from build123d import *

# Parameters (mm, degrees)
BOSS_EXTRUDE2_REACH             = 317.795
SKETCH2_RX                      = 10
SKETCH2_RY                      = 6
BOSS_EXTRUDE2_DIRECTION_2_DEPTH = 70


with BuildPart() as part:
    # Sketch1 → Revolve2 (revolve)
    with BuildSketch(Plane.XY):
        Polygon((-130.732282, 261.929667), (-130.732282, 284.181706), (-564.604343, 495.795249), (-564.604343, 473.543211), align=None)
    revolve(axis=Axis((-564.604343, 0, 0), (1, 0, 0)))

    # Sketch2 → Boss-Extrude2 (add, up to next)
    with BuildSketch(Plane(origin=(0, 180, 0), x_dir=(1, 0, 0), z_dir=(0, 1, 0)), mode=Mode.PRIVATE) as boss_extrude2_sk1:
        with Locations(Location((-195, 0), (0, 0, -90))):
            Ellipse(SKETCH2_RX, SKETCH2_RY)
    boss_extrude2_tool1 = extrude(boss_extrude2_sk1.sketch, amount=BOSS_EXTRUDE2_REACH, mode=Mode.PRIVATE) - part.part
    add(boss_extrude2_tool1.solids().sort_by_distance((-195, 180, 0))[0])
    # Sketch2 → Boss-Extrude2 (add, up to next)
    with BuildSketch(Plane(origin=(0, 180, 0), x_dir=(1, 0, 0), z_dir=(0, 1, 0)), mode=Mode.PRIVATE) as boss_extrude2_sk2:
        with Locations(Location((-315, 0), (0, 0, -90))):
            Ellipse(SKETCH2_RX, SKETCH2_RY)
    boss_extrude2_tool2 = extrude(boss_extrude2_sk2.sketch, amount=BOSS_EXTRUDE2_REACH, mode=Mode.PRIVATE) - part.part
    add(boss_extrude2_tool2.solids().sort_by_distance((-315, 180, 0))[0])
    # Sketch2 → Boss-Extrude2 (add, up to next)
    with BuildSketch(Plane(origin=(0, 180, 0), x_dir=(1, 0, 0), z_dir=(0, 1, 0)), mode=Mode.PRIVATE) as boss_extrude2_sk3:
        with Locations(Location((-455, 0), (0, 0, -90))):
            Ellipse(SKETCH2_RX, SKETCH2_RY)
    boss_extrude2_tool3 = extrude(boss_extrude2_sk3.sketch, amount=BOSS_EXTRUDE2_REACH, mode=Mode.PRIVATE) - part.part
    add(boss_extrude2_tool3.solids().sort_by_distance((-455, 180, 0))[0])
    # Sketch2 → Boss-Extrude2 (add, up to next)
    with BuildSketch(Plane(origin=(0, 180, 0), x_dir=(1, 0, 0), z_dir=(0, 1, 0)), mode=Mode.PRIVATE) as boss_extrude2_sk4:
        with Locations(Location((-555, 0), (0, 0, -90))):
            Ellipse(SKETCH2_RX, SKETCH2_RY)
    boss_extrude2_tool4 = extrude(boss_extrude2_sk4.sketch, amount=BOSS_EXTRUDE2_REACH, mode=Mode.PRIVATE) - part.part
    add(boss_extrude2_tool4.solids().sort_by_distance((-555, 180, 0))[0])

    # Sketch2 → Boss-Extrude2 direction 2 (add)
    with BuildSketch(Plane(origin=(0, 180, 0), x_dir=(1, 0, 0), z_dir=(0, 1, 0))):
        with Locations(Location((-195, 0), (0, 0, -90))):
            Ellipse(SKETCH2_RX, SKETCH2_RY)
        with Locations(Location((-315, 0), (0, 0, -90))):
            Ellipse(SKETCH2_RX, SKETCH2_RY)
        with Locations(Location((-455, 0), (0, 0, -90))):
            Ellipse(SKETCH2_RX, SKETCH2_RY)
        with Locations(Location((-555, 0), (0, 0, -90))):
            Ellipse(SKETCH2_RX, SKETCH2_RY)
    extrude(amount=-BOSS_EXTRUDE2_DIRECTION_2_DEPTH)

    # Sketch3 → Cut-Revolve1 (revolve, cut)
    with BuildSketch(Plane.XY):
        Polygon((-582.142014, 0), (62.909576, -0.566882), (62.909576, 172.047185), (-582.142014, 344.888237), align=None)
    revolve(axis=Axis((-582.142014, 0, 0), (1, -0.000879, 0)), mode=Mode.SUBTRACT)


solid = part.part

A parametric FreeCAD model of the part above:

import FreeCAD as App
import Part
import Sketcher
from FreeCAD import Vector
Q = App.Units.Quantity

doc = App.newDocument("Part")
body = doc.addObject("PartDesign::Body", "Body")

# Sketch on XY plane
sketch1 = body.newObject("Sketcher::SketchObject", "Sketch")
sketch1.AttachmentSupport = (doc.getObject("XY_Plane"), [""])
sketch1.MapMode = "FlatFace"
sketch1.addGeometry([
    Part.LineSegment(Vector(-131, 262, 0), Vector(-131, 284, 0)),
    Part.LineSegment(Vector(-131, 284, 0), Vector(-565, 496, 0)),
    Part.LineSegment(Vector(-565, 496, 0), Vector(-565, 474, 0)),
    Part.LineSegment(Vector(-565, 474, 0), Vector(-131, 262, 0)),
], False)
sketch1.addConstraint([
    Sketcher.Constraint("Coincident", 0, 2, 1, 1),
    Sketcher.Constraint("Coincident", 1, 2, 2, 1),
    Sketcher.Constraint("Coincident", 2, 2, 3, 1),
    Sketcher.Constraint("Coincident", 3, 2, 0, 1),
    Sketcher.Constraint("Vertical", 0),
    Sketcher.Constraint("Vertical", 2),
    Sketcher.Constraint("Parallel", 1, 3),
    Sketcher.Constraint("Angle", 1, Q("154 deg")),
    Sketcher.Constraint("DistanceY", 0, 1, 0, 2, 22.252039),
    Sketcher.Constraint("DistanceX", 0, 2, -1, 1, 130.732282),
    Sketcher.Constraint("DistanceY", -1, 1, 1, 2, 495.795249),
    Sketcher.Constraint("DistanceX", 1, 2, 0, 2, 433.872061),
])
revolution = body.newObject("PartDesign::Revolution", "Revolution")
revolution.Profile = sketch1
revolution.ReferenceAxis = (sketch1, ["H_Axis"])
revolution.Angle = 360

# Sketch on XZ plane
sketch2 = body.newObject("Sketcher::SketchObject", "Sketch001")
sketch2.AttachmentSupport = (doc.getObject("XZ_Plane"), [""])
sketch2.MapMode = "FlatFace"
sketch2.AttachmentOffset = App.Placement(Vector(0, 0, -180), App.Rotation())
sketch2.addGeometry(Part.Ellipse(Vector(-195, 10, 0), Vector(-201, 0, 0), Vector(-195, 0, 0)), False)
sketch2.addConstraint(Sketcher.Constraint("Block", 0))
pad1 = body.newObject("PartDesign::Pad", "Pad")
pad1.Profile = sketch2
pad1.Type = "UpToFirst"
pad1.Reversed = True

# Sketch on XZ plane
sketch3 = body.newObject("Sketcher::SketchObject", "Sketch002")
sketch3.AttachmentSupport = (doc.getObject("XZ_Plane"), [""])
sketch3.MapMode = "FlatFace"
sketch3.AttachmentOffset = App.Placement(Vector(0, 0, -180), App.Rotation())
sketch3.addGeometry(Part.Ellipse(Vector(-315, 10, 0), Vector(-321, 0, 0), Vector(-315, 0, 0)), False)
sketch3.addConstraint(Sketcher.Constraint("Block", 0))
pad2 = body.newObject("PartDesign::Pad", "Pad001")
pad2.Profile = sketch3
pad2.Type = "UpToFirst"
pad2.Reversed = True

# Sketch on XZ plane
sketch4 = body.newObject("Sketcher::SketchObject", "Sketch003")
sketch4.AttachmentSupport = (doc.getObject("XZ_Plane"), [""])
sketch4.MapMode = "FlatFace"
sketch4.AttachmentOffset = App.Placement(Vector(0, 0, -180), App.Rotation())
sketch4.addGeometry(Part.Ellipse(Vector(-455, 10, 0), Vector(-461, 0, 0), Vector(-455, 0, 0)), False)
sketch4.addConstraint(Sketcher.Constraint("Block", 0))
pad3 = body.newObject("PartDesign::Pad", "Pad002")
pad3.Profile = sketch4
pad3.Type = "UpToFirst"
pad3.Reversed = True

# Sketch on XZ plane
sketch5 = body.newObject("Sketcher::SketchObject", "Sketch004")
sketch5.AttachmentSupport = (doc.getObject("XZ_Plane"), [""])
sketch5.MapMode = "FlatFace"
sketch5.AttachmentOffset = App.Placement(Vector(0, 0, -180), App.Rotation())
sketch5.addGeometry(Part.Ellipse(Vector(-555, 10, 0), Vector(-561, 0, 0), Vector(-555, 0, 0)), False)
sketch5.addConstraint(Sketcher.Constraint("Block", 0))
pad4 = body.newObject("PartDesign::Pad", "Pad003")
pad4.Profile = sketch5
pad4.Type = "UpToFirst"
pad4.Reversed = True

# Sketch on XZ plane
sketch6 = body.newObject("Sketcher::SketchObject", "Sketch005")
sketch6.AttachmentSupport = (doc.getObject("XZ_Plane"), [""])
sketch6.MapMode = "FlatFace"
sketch6.AttachmentOffset = App.Placement(Vector(0, 0, -180), App.Rotation())
sketch6.addGeometry([
    Part.Ellipse(Vector(-195, 10, 0), Vector(-201, 0, 0), Vector(-195, 0, 0)),
    Part.Ellipse(Vector(-315, 10, 0), Vector(-321, 0, 0), Vector(-315, 0, 0)),
    Part.Ellipse(Vector(-455, 10, 0), Vector(-461, 0, 0), Vector(-455, 0, 0)),
    Part.Ellipse(Vector(-555, 10, 0), Vector(-561, 0, 0), Vector(-555, 0, 0)),
], False)
sketch6.addConstraint([
    Sketcher.Constraint("Block", 0),
    Sketcher.Constraint("Block", 1),
    Sketcher.Constraint("Block", 2),
    Sketcher.Constraint("Block", 3),
])
pad5 = body.newObject("PartDesign::Pad", "Pad004")
pad5.Profile = sketch6
pad5.Length = 70

# Sketch on XY plane
sketch7 = body.newObject("Sketcher::SketchObject", "Sketch006")
sketch7.AttachmentSupport = (doc.getObject("XY_Plane"), [""])
sketch7.MapMode = "FlatFace"
sketch7.addGeometry([
    Part.LineSegment(Vector(-582.142014, 0, 0), Vector(62.909576, -0.566882, 0)),
    Part.LineSegment(Vector(62.909576, -0.566882, 0), Vector(62.909576, 172.047185, 0)),
    Part.LineSegment(Vector(62.909576, 172.047185, 0), Vector(-582.142014, 344.888237, 0)),
    Part.LineSegment(Vector(-582.142014, 344.888237, 0), Vector(-582.142014, 0, 0)),
], False)
sketch7.addGeometry(Part.LineSegment(Vector(-582.445171, 0.000266, 0), Vector(62.909576, -0.567001, 0)), True)  # axis
sketch7.addConstraint([
    Sketcher.Constraint("Coincident", 0, 2, 1, 1),
    Sketcher.Constraint("Coincident", 1, 2, 2, 1),
    Sketcher.Constraint("Coincident", 2, 2, 3, 1),
    Sketcher.Constraint("Coincident", 3, 2, 0, 1),
    Sketcher.Constraint("Vertical", 1),
    Sketcher.Constraint("Vertical", 3),
    Sketcher.Constraint("PointOnObject", 3, 2, -1),
    Sketcher.Constraint("DistanceY", 4, 2, -1, 1, 0.567001),
    Sketcher.Constraint("Distance", 0, 645.051839),
    Sketcher.Constraint("DistanceY", 1, 1, 1, 2, 172.614067),
    Sketcher.Constraint("DistanceY", 3, 2, 3, 1, 344.888237),
    Sketcher.Constraint("DistanceY", 0, 2, -1, 1, 0.566882),
    Sketcher.Constraint("DistanceX", 4, 1, -1, 1, 582.445171),
    Sketcher.Constraint("DistanceY", 4, 1, 2, 2, 344.887971),
    Sketcher.Constraint("DistanceX", 3, 2, 4, 2, 645.05159),
    Sketcher.Constraint("Distance", 4, 645.354996),
])
groove = body.newObject("PartDesign::Groove", "Groove")
groove.Profile = sketch7
groove.ReferenceAxis = (sketch7, ["Axis0"])
groove.Angle = 360

doc.recompute()
